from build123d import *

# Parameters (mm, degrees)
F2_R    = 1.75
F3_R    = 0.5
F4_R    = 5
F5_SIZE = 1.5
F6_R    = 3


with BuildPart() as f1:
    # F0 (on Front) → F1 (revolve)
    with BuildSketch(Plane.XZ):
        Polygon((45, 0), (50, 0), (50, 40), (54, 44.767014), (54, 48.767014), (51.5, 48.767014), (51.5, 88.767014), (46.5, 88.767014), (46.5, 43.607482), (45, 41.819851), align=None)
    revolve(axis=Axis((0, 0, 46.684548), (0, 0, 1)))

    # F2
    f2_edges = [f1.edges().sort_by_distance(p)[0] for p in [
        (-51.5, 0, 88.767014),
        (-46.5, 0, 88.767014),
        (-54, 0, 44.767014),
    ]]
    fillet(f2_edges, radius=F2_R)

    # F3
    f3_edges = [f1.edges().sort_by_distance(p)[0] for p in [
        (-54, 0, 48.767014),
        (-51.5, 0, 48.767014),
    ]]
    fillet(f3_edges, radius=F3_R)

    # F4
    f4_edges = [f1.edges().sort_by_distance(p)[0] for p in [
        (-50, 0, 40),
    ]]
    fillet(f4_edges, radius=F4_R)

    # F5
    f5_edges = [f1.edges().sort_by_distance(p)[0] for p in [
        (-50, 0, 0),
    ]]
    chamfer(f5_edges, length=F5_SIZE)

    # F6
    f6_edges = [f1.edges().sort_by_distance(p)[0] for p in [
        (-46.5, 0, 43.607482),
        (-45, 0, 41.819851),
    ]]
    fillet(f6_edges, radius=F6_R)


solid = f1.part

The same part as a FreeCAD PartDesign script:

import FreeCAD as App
import Part
import Sketcher

V = App.Vector
Q = App.Units.Quantity


def edges_at(feature, points):
    """Names of the edges that pass closest to the given points."""
    edges = feature.Shape.Edges
    near = lambda p: min(range(len(edges)), key=lambda i: edges[i].distToShape(Part.Vertex(*p))[0])
    return sorted({f"Edge{near(p) + 1}" for p in points})

doc = App.newDocument("Part")
body = doc.addObject("PartDesign::Body", "Body")

# Sketch on XZ plane
sketch1 = body.newObject("Sketcher::SketchObject", "Sketch")
sketch1.AttachmentSupport = (doc.getObject("XZ_Plane"), [""])
sketch1.MapMode = "FlatFace"
sketch1.addGeometry([
    Part.LineSegment(V(45, 0, 0), V(50, 0, 0)),  # 0
    Part.LineSegment(V(50, 0, 0), V(50, 40, 0)),  # 1
    Part.LineSegment(V(50, 40, 0), V(54, 44.767014, 0)),  # 2
    Part.LineSegment(V(54, 44.767014, 0), V(54, 48.767014, 0)),  # 3
    Part.LineSegment(V(54, 48.767014, 0), V(51.5, 48.767014, 0)),  # 4
    Part.LineSegment(V(51.5, 48.767014, 0), V(51.5, 88.767014, 0)),  # 5
    Part.LineSegment(V(51.5, 88.767014, 0), V(46.5, 88.767014, 0)),  # 6
    Part.LineSegment(V(46.5, 88.767014, 0), V(46.5, 43.607482, 0)),  # 7
    Part.LineSegment(V(46.5, 43.607482, 0), V(45, 41.819851, 0)),  # 8
    Part.LineSegment(V(45, 41.819851, 0), V(45, 0, 0)),  # 9
], False)
sketch1.addConstraint([
    Sketcher.Constraint("Coincident", 0, 2, 1, 1),
    Sketcher.Constraint("Coincident", 1, 2, 2, 1),
    Sketcher.Constraint("Coincident", 2, 2, 3, 1),
    Sketcher.Constraint("Coincident", 3, 2, 4, 1),
    Sketcher.Constraint("Coincident", 4, 2, 5, 1),
    Sketcher.Constraint("Coincident", 5, 2, 6, 1),
    Sketcher.Constraint("Coincident", 6, 2, 7, 1),
    Sketcher.Constraint("Coincident", 7, 2, 8, 1),
    Sketcher.Constraint("Coincident", 8, 2, 9, 1),
    Sketcher.Constraint("Coincident", 9, 2, 0, 1),
    Sketcher.Constraint("Horizontal", 0),
    Sketcher.Constraint("Vertical", 1),
    Sketcher.Constraint("Vertical", 3),
    Sketcher.Constraint("Horizontal", 4),
    Sketcher.Constraint("Vertical", 5),
    Sketcher.Constraint("Horizontal", 6),
    Sketcher.Constraint("Vertical", 7),
    Sketcher.Constraint("Vertical", 9),
    Sketcher.Constraint("PointOnObject", 0, 2, -1),
    Sketcher.Constraint("Parallel", 2, 8),
    Sketcher.Constraint("Equal", 0, 6),
    Sketcher.Constraint("Equal", 1, 5),
    Sketcher.Constraint("DistanceX", 0, 1, 0, 2, 5.0),
    Sketcher.Constraint("DistanceY", 1, 1, 1, 2, 40.0),
    Sketcher.Constraint("DistanceY", 3, 1, 3, 2, 4.0),
    Sketcher.Constraint("Angle", 2, Q("49.999998 deg")),
    Sketcher.Constraint("DistanceX", 4, 2, 4, 1, 2.5),
    Sketcher.Constraint("DistanceX", -1, 1, 0, 2, 50.0),
    Sketcher.Constraint("DistanceX", -1, 1, 2, 2, 54.0),
    Sketcher.Constraint("DistanceY", 9, 2, 9, 1, 41.819851),
])
revolution = body.newObject("PartDesign::Revolution", "Revolution")
revolution.Profile = sketch1
revolution.ReferenceAxis = (sketch1, ["V_Axis"])
revolution.Angle = 360
doc.recompute()

fillet = body.newObject("PartDesign::Fillet", "Fillet")
fillet.Base = (revolution, edges_at(revolution, [(-51.5, 0, 88.767), (-46.5, 0, 88.767), (-54, 0, 44.767)]))
fillet.Radius = 1.75
doc.recompute()

fillet2 = body.newObject("PartDesign::Fillet", "Fillet001")
fillet2.Base = (fillet, edges_at(fillet, [(-54, 0, 48.767), (-51.5, 0, 48.767)]))
fillet2.Radius = 0.5
doc.recompute()

fillet3 = body.newObject("PartDesign::Fillet", "Fillet002")
fillet3.Base = (fillet2, edges_at(fillet2, [(-50, 0, 40)]))
fillet3.Radius = 5
doc.recompute()

chamfer = body.newObject("PartDesign::Chamfer", "Chamfer")
chamfer.Base = (fillet3, edges_at(fillet3, [(-50, 0, 0)]))
chamfer.Size = 1.5
doc.recompute()

fillet4 = body.newObject("PartDesign::Fillet", "Fillet003")
fillet4.Base = (chamfer, edges_at(chamfer, [(-46.5, 0, 43.607), (-45, 0, 41.82)]))
fillet4.Radius = 3

doc.recompute()
